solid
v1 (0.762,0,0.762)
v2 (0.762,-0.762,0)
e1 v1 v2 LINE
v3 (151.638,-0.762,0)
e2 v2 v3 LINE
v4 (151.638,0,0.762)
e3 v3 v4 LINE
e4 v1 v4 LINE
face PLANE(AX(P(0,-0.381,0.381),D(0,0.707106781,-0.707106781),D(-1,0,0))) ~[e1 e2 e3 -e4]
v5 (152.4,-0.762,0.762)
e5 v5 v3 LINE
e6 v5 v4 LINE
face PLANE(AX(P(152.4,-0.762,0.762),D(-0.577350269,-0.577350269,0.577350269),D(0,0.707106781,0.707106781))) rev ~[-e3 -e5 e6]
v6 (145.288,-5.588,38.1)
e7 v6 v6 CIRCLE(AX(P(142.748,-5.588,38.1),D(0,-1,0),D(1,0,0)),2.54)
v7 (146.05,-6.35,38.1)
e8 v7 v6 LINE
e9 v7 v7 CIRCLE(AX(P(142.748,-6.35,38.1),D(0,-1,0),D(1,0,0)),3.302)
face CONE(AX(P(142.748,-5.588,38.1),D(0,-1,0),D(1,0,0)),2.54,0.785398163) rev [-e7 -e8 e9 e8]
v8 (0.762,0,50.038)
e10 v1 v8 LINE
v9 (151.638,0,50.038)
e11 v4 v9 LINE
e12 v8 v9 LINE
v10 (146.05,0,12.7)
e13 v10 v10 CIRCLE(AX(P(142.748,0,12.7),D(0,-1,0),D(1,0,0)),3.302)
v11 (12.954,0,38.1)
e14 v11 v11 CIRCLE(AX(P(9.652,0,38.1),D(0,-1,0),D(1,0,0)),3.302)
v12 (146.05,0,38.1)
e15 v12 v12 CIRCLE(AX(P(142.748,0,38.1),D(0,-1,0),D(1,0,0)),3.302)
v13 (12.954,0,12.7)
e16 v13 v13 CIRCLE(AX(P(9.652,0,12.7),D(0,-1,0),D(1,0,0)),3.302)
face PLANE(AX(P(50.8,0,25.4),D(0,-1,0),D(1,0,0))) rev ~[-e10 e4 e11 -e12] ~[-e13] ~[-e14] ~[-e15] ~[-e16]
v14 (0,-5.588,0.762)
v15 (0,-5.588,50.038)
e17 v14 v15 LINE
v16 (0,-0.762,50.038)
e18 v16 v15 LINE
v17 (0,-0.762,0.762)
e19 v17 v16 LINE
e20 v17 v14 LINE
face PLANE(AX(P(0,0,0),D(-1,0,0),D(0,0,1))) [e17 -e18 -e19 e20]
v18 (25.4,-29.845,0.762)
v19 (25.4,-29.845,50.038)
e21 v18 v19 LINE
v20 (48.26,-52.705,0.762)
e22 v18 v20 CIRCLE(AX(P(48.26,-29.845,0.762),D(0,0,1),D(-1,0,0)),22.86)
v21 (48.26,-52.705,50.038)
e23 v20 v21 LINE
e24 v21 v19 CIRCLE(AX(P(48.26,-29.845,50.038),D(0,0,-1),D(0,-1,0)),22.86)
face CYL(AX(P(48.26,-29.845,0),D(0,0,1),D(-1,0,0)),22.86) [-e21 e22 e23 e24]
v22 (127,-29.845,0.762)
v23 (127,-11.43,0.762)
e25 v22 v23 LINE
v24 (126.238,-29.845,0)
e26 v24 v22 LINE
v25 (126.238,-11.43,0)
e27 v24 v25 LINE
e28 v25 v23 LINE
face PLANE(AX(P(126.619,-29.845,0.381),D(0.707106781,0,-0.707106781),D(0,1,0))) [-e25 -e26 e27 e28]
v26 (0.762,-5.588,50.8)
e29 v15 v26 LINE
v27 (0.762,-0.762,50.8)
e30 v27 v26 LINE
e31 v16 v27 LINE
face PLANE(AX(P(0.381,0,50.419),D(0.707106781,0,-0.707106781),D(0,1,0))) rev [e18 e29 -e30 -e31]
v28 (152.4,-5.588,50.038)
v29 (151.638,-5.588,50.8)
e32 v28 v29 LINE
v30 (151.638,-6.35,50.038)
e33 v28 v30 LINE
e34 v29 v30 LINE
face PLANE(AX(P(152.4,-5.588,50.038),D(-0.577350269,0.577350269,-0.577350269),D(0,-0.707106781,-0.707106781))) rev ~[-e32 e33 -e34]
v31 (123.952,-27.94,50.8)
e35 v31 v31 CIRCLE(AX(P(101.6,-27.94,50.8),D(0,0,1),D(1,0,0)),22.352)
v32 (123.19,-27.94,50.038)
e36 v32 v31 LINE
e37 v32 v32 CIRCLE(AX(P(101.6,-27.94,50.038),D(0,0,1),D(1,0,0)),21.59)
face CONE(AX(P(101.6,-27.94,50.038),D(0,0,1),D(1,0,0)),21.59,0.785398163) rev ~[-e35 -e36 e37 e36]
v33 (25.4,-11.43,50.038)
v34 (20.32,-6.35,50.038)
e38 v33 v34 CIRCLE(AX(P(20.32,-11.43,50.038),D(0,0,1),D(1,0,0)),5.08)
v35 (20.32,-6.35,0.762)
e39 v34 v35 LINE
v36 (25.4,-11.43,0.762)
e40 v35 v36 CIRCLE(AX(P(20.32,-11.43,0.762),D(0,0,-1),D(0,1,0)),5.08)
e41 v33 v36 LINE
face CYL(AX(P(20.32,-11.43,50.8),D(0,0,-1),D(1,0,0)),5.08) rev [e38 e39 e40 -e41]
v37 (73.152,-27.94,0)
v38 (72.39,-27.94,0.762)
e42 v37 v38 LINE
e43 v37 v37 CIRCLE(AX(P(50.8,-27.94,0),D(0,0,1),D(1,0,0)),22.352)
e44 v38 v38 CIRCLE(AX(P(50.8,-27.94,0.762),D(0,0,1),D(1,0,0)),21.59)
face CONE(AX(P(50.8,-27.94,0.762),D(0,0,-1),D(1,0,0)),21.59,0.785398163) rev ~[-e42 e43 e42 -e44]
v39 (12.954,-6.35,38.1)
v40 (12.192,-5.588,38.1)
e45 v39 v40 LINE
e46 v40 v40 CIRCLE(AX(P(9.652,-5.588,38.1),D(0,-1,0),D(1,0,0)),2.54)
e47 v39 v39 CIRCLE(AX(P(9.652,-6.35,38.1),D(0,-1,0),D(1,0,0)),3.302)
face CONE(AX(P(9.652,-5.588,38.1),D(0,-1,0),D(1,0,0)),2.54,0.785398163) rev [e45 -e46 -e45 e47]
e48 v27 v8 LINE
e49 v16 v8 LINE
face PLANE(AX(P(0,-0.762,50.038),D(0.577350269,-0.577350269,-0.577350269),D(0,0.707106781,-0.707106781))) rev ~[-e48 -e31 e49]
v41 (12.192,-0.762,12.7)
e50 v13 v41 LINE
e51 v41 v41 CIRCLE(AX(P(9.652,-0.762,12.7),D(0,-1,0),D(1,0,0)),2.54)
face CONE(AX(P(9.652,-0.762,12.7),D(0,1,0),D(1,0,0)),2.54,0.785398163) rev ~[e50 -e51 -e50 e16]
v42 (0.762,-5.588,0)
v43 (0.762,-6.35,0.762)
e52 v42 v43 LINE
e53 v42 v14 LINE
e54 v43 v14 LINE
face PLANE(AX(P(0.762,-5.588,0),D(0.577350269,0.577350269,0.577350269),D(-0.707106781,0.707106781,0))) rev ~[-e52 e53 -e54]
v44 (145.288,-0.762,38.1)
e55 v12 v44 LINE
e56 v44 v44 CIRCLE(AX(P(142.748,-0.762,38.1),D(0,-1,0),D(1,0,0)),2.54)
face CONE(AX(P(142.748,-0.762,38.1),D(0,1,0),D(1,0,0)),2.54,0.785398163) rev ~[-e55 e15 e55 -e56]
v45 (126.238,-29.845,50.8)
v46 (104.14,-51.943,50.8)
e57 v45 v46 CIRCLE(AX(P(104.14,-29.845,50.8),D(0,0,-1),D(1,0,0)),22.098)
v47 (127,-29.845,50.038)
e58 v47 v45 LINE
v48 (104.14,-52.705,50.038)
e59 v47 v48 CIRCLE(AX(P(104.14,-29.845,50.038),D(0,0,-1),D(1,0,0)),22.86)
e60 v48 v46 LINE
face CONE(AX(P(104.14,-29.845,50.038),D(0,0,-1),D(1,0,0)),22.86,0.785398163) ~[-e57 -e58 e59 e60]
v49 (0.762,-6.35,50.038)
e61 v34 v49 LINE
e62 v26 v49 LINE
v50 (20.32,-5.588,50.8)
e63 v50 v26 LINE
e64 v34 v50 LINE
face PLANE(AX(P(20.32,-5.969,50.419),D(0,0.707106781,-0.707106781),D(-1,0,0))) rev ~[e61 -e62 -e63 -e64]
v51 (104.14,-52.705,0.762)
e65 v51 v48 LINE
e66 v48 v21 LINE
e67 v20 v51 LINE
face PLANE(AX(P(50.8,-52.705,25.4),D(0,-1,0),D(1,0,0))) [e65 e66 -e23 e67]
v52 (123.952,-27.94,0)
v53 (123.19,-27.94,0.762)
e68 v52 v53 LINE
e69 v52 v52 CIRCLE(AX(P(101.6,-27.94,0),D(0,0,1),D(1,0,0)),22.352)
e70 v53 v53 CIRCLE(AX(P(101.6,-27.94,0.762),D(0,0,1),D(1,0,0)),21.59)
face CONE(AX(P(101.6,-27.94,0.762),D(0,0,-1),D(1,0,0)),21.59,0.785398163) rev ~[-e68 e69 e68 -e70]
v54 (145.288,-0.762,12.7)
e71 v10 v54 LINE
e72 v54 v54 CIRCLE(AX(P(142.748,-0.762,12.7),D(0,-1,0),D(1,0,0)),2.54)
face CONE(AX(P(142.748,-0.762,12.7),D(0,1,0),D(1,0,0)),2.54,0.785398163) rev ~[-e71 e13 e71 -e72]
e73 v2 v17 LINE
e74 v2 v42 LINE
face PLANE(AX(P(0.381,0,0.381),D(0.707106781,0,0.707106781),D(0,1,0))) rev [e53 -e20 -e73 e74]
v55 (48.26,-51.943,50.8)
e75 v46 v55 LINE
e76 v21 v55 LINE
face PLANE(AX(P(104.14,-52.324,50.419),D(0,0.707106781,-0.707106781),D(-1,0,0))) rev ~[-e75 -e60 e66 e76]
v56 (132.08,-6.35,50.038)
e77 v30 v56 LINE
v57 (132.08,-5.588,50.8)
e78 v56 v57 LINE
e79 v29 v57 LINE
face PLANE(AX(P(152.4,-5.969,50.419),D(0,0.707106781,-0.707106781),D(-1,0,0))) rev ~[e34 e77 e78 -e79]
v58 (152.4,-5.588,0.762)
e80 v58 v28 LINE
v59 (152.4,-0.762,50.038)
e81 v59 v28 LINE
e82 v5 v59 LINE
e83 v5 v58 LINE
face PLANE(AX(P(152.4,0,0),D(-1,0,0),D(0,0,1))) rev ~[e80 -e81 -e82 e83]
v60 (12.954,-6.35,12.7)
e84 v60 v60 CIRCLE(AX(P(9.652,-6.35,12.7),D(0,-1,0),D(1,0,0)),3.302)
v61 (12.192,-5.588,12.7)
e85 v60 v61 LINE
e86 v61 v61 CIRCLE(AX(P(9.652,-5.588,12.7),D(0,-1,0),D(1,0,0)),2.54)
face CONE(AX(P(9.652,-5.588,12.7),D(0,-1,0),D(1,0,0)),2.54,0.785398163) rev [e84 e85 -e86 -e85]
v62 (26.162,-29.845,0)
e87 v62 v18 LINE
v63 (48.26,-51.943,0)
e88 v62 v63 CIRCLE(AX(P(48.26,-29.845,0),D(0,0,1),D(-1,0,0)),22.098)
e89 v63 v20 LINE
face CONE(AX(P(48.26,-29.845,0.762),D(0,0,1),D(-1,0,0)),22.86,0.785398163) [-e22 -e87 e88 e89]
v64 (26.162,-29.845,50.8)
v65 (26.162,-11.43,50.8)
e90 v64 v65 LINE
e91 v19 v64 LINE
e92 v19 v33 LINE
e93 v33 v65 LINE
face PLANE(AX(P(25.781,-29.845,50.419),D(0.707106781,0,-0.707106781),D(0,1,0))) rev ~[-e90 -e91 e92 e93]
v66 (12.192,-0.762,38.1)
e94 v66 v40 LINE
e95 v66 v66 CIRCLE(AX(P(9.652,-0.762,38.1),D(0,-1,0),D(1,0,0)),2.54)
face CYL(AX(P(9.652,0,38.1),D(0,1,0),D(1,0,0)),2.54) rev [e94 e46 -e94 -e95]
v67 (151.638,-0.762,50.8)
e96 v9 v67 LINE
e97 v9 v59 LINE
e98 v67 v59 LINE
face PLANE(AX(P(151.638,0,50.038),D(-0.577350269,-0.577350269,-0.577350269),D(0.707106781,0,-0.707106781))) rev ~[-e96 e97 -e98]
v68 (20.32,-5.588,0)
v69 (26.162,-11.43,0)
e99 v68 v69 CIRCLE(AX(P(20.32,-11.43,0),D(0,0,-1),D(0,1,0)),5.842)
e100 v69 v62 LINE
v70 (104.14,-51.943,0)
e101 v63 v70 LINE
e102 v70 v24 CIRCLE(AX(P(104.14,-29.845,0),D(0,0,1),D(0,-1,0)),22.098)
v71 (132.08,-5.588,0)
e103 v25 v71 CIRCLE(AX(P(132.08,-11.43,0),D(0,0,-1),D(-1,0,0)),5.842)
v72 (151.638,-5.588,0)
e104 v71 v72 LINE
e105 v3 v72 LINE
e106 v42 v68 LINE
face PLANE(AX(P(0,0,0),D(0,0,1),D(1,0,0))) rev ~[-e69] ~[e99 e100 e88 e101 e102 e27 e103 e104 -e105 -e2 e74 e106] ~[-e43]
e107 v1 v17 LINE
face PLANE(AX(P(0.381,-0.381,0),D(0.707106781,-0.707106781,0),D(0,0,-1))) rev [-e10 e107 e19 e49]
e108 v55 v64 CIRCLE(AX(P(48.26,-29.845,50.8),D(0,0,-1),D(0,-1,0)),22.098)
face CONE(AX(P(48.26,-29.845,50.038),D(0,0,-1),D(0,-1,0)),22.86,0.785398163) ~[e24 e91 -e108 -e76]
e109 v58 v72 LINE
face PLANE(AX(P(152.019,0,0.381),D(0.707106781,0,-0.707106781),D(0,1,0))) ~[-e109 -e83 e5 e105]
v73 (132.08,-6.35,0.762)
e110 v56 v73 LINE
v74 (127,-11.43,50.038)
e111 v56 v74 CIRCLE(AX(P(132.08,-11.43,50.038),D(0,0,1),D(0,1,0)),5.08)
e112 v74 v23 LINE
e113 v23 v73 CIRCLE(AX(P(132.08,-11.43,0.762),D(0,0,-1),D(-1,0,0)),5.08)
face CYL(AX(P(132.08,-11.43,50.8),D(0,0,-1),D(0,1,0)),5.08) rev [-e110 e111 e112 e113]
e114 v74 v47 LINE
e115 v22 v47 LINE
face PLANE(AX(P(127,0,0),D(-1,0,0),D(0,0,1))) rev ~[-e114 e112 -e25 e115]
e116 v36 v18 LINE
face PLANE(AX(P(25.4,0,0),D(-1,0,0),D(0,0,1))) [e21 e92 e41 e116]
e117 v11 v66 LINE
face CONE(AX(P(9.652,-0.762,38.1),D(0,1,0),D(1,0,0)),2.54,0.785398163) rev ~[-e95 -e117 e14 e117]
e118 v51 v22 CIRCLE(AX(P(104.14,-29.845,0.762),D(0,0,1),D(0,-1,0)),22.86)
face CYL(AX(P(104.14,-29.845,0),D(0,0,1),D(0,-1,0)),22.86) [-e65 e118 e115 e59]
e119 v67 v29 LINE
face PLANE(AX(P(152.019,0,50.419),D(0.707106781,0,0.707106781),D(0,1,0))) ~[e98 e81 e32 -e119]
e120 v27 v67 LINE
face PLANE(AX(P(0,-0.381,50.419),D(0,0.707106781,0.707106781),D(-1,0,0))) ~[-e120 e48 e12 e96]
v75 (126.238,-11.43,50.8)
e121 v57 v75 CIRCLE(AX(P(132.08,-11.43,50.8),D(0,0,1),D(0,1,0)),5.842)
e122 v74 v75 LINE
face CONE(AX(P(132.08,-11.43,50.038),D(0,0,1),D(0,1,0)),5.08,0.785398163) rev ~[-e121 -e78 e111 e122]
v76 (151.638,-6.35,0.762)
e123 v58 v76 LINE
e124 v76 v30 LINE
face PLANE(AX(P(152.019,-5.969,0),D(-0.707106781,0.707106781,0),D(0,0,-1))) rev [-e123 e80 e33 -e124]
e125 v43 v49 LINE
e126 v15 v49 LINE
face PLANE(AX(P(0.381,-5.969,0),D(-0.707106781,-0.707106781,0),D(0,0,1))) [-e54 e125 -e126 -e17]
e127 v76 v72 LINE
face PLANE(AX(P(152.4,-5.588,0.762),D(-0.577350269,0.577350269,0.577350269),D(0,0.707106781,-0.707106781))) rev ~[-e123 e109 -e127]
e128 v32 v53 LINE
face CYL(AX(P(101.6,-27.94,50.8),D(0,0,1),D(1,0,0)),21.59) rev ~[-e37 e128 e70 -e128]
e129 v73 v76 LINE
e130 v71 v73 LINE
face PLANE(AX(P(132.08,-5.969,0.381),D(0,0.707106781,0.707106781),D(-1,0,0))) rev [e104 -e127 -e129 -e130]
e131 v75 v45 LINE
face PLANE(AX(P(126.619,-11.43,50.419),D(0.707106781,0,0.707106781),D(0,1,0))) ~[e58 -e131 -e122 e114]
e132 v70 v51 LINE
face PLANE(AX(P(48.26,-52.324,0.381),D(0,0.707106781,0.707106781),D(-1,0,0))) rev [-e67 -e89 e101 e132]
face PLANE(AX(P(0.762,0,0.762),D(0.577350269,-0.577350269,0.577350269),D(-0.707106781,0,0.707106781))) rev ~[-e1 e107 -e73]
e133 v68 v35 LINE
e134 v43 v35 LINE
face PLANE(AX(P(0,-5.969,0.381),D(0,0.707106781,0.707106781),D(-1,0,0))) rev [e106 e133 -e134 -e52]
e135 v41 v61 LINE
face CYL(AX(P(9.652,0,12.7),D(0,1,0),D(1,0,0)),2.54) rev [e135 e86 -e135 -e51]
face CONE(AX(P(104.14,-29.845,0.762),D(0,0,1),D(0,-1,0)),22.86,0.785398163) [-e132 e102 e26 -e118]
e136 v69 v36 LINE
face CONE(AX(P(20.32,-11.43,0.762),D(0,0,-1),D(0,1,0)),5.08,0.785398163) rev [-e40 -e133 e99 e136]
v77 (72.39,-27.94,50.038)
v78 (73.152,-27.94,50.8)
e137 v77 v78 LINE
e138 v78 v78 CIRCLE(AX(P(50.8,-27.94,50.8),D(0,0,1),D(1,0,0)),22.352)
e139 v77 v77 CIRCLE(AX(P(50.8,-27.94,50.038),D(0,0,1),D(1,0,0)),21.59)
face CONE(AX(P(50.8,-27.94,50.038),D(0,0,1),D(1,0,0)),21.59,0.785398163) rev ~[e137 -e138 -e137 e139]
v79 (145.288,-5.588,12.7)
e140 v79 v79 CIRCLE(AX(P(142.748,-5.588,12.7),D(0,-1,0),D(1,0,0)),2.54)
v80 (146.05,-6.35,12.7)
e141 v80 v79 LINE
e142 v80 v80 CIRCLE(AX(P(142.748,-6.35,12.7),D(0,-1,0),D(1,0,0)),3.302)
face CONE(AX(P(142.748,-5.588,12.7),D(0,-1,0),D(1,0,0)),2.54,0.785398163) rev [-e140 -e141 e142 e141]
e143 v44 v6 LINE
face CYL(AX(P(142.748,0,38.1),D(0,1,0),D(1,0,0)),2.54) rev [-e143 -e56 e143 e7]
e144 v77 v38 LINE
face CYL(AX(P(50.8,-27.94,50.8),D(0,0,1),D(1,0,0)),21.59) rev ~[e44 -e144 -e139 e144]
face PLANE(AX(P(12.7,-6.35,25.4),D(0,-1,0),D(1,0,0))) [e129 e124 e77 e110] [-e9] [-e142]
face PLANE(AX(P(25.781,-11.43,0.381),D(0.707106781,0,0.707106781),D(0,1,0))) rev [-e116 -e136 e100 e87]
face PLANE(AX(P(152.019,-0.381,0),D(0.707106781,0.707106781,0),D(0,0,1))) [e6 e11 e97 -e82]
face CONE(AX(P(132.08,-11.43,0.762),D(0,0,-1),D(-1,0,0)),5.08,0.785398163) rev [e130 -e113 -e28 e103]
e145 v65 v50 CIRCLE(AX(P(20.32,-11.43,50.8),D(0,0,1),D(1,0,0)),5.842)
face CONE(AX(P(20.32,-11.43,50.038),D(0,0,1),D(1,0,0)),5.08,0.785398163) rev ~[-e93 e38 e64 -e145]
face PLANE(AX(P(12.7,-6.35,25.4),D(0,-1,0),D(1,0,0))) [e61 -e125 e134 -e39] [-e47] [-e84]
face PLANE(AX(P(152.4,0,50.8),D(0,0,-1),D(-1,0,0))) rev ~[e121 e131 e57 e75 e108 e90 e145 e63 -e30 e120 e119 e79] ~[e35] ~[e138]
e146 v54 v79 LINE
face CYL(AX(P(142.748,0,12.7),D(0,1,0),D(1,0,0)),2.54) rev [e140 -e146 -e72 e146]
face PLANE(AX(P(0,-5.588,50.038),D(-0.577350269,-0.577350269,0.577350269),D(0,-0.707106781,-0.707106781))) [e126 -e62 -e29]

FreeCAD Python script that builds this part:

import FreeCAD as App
import Part
import Sketcher
Q = App.Units.Quantity


def edges_at(feature, points):
    """Names of the edges that pass closest to the given points."""
    edges = feature.Shape.Edges
    near = lambda p: min(range(len(edges)), key=lambda i: edges[i].distToShape(Part.Vertex(*p))[0])
    return sorted({f"Edge{near(p) + 1}" for p in points})


def add_polygon(sketch, points):
    """Adds a closed chain of lines whose ends are joined by coincident constraints."""
    first, n = sketch.GeometryCount, len(points)
    for a, b in zip(points, points[1:] + points[:1]):
        sketch.addGeometry(Part.LineSegment(App.Vector(*a, 0), App.Vector(*b, 0)), False)
    for i in range(n):
        sketch.addConstraint(Sketcher.Constraint("Coincident", first + i, 2, first + (i + 1) % n, 1))

doc = App.newDocument("Part")
body = doc.addObject("PartDesign::Body", "Body")

# Sketch on XZ plane
sketch1 = body.newObject("Sketcher::SketchObject", "Sketch")
sketch1.AttachmentSupport = (doc.getObject("XZ_Plane"), [""])
sketch1.MapMode = "FlatFace"
add_polygon(sketch1, [(0, 50.8), (0, 0), (152.4, 0), (152.4, 50.8)])  # lines 0-3
sketch1.addGeometry(Part.Circle(App.Vector(9.7, 12.7, 0), App.Vector(0, 0, 1), 2.5), False)  # 4
sketch1.addGeometry(Part.Circle(App.Vector(9.7, 38.1, 0), App.Vector(0, 0, 1), 2.5), False)  # 5
sketch1.addGeometry(Part.Circle(App.Vector(142.7, 38.1, 0), App.Vector(0, 0, 1), 2.5), False)  # 6
sketch1.addGeometry(Part.Circle(App.Vector(142.7, 12.7, 0), App.Vector(0, 0, 1), 2.5), False)  # 7
sketch1.addConstraint([
    Sketcher.Constraint("Vertical", 0),
    Sketcher.Constraint("Horizontal", 1),
    Sketcher.Constraint("Vertical", 2),
    Sketcher.Constraint("Horizontal", 3),
    Sketcher.Constraint("Coincident", 0, 2, -1, 1),
    Sketcher.Constraint("Equal", 4, 5),
    Sketcher.Constraint("Equal", 5, 6),
    Sketcher.Constraint("Equal", 6, 7),
    Sketcher.Constraint("Horizontal", 5, 3, 6, 3),
    Sketcher.Constraint("Horizontal", 4, 3, 7, 3),
    Sketcher.Constraint("Vertical", 4, 3, 5, 3),
    Sketcher.Constraint("Vertical", 6, 3, 7, 3),
    Sketcher.Constraint("Diameter", 4, Q("0.2 in")),
    Sketcher.Constraint("DistanceX", 1, 1, 1, 2, Q("6 in")),
    Sketcher.Constraint("DistanceY", 0, 2, 0, 1, Q("2 in")),
    Sketcher.Constraint("DistanceY", 4, 3, 5, 3, Q("1 in")),
    Sketcher.Constraint("DistanceY", -1, 1, 4, 3, Q("0.5 in")),
    Sketcher.Constraint("DistanceX", -1, 1, 4, 3, Q("0.38 in")),
    Sketcher.Constraint("DistanceX", -1, 1, 6, 3, Q("5.62 in")),
])
pad1 = body.newObject("PartDesign::Pad", "Pad")
pad1.Profile = sketch1
pad1.Length = Q("0.25 in")

# Sketch on XZ plane
sketch2 = body.newObject("Sketcher::SketchObject", "Sketch001")
sketch2.AttachmentSupport = (doc.getObject("XZ_Plane"), [""])
sketch2.MapMode = "FlatFace"
add_polygon(sketch2, [(25, 51), (25, 0), (127, 0), (127, 51)])  # lines 0-3
sketch2.addConstraint([
    Sketcher.Constraint("Vertical", 0),
    Sketcher.Constraint("Horizontal", 1),
    Sketcher.Constraint("Vertical", 2),
    Sketcher.Constraint("Horizontal", 3),
    Sketcher.Constraint("PointOnObject", 0, 2, -1),
    Sketcher.Constraint("DistanceX", 1, 1, 1, 2, Q("4 in")),
    Sketcher.Constraint("DistanceY", 0, 2, 0, 1, Q("2 in")),
    Sketcher.Constraint("DistanceX", -1, 1, 0, 2, Q("1 in")),
])
pad2 = body.newObject("PartDesign::Pad", "Pad001")
pad2.Profile = sketch2
pad2.Length = Q("2.075 in")
doc.recompute()

fillet = body.newObject("PartDesign::Fillet", "Fillet")
fillet.Base = (pad2, edges_at(pad2, [(127, -6.35, 25.4), (25.4, -6.35, 25.4)]))
fillet.Radius = Q("0.2 in")

# Sketch on XY plane
sketch3 = body.newObject("Sketcher::SketchObject", "Sketch002")
sketch3.AttachmentSupport = (doc.getObject("XY_Plane"), [""])
sketch3.MapMode = "FlatFace"
sketch3.AttachmentOffset = App.Placement(App.Vector(0, 0, 2 * 25.4), App.Rotation())
sketch3.addGeometry([
    Part.Circle(App.Vector(51, -28, 0), App.Vector(0, 0, 1), 22),
    Part.Circle(App.Vector(102, -28, 0), App.Vector(0, 0, 1), 22),
], False)
sketch3.addConstraint([
    Sketcher.Constraint("Equal", 0, 1),
    Sketcher.Constraint("Horizontal", 0, 3, 1, 3),
    Sketcher.Constraint("Diameter", 0, Q("1.7 in")),
    Sketcher.Constraint("DistanceX", -1, 1, 0, 3, Q("2 in")),
    Sketcher.Constraint("DistanceX", -1, 1, 1, 3, Q("4 in")),
    Sketcher.Constraint("DistanceY", 0, 3, -1, 1, Q("1.1 in")),
])
pocket1 = body.newObject("PartDesign::Pocket", "Pocket")
pocket1.Profile = sketch3
pocket1.Type = "ThroughAll"
doc.recompute()

fillet2 = body.newObject("PartDesign::Fillet", "Fillet001")
fillet2.Base = (pocket1, edges_at(pocket1, [(127, -52.705, 25.4), (25.4, -52.705, 25.4)]))
fillet2.Radius = Q("0.9 in")
doc.recompute()

chamfer = body.newObject("PartDesign::Chamfer", "Chamfer")
chamfer.Base = (fillet2, ["Edge1"])
chamfer.UseAllEdges = True
chamfer.Size = Q("0.03 in")

doc.recompute()
